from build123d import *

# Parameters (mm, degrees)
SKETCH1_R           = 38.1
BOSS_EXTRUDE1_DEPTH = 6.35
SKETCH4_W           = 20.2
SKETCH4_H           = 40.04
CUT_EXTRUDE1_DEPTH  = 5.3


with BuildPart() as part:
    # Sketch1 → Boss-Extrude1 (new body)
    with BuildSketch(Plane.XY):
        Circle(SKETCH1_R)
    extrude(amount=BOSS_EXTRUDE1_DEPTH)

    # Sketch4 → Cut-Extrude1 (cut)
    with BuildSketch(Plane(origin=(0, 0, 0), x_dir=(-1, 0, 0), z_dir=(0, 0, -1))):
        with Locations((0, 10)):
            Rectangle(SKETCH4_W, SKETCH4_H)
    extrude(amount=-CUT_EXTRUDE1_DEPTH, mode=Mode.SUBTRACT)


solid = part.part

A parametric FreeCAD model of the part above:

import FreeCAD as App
import Part
import Sketcher
Q = App.Units.Quantity


def add_polygon(sketch, points):
    """Adds a closed chain of lines whose ends are joined by coincident constraints."""
    first, n = sketch.GeometryCount, len(points)
    for a, b in zip(points, points[1:] + points[:1]):
        sketch.addGeometry(Part.LineSegment(App.Vector(*a, 0), App.Vector(*b, 0)), False)
    for i in range(n):
        sketch.addConstraint(Sketcher.Constraint("Coincident", first + i, 2, first + (i + 1) % n, 1))

doc = App.newDocument("Part")
body = doc.addObject("PartDesign::Body", "Body")

sketch1 = body.newObject("Sketcher::SketchObject", "Sketch")
sketch1.AttachmentSupport = (doc.getObject("XY_Plane"), [""])
sketch1.MapMode = "FlatFace"
sketch1.addGeometry(Part.Circle(App.Vector(0, 0, 0), App.Vector(0, 0, 1), 38.1), False)
sketch1.addConstraint([
    Sketcher.Constraint("Coincident", 0, 3, -1, 1),
    Sketcher.Constraint("Diameter", 0, Q("76.2 mm")),
])
pad1 = body.newObject("PartDesign::Pad", "Pad")
pad1.Profile = sketch1
pad1.Length = 6.35

sketch2 = body.newObject("Sketcher::SketchObject", "Sketch001")
sketch2.AttachmentSupport = (doc.getObject("XY_Plane"), [""])
sketch2.MapMode = "FlatFace"
add_polygon(sketch2, [(10.1, 30.02), (10.1, -10.02), (-10.1, -10.02), (-10.1, 30.02)])
sketch2.addConstraint([
    Sketcher.Constraint("Vertical", 0),
    Sketcher.Constraint("Horizontal", 1),
    Sketcher.Constraint("Vertical", 2),
    Sketcher.Constraint("Horizontal", 3),
    Sketcher.Constraint("DistanceX", 1, 2, 1, 1, Q("20.2 mm")),
    Sketcher.Constraint("DistanceY", 0, 2, 0, 1, Q("40.04 mm")),
    Sketcher.Constraint("DistanceX", -1, 1, 0, 2, Q("10.1 mm")),
    Sketcher.Constraint("DistanceY", 0, 2, -1, 1, Q("10.02 mm")),
])
pocket1 = body.newObject("PartDesign::Pocket", "Pocket")
pocket1.Profile = sketch2
pocket1.Length = 5.3
pocket1.Reversed = True

doc.recompute()
